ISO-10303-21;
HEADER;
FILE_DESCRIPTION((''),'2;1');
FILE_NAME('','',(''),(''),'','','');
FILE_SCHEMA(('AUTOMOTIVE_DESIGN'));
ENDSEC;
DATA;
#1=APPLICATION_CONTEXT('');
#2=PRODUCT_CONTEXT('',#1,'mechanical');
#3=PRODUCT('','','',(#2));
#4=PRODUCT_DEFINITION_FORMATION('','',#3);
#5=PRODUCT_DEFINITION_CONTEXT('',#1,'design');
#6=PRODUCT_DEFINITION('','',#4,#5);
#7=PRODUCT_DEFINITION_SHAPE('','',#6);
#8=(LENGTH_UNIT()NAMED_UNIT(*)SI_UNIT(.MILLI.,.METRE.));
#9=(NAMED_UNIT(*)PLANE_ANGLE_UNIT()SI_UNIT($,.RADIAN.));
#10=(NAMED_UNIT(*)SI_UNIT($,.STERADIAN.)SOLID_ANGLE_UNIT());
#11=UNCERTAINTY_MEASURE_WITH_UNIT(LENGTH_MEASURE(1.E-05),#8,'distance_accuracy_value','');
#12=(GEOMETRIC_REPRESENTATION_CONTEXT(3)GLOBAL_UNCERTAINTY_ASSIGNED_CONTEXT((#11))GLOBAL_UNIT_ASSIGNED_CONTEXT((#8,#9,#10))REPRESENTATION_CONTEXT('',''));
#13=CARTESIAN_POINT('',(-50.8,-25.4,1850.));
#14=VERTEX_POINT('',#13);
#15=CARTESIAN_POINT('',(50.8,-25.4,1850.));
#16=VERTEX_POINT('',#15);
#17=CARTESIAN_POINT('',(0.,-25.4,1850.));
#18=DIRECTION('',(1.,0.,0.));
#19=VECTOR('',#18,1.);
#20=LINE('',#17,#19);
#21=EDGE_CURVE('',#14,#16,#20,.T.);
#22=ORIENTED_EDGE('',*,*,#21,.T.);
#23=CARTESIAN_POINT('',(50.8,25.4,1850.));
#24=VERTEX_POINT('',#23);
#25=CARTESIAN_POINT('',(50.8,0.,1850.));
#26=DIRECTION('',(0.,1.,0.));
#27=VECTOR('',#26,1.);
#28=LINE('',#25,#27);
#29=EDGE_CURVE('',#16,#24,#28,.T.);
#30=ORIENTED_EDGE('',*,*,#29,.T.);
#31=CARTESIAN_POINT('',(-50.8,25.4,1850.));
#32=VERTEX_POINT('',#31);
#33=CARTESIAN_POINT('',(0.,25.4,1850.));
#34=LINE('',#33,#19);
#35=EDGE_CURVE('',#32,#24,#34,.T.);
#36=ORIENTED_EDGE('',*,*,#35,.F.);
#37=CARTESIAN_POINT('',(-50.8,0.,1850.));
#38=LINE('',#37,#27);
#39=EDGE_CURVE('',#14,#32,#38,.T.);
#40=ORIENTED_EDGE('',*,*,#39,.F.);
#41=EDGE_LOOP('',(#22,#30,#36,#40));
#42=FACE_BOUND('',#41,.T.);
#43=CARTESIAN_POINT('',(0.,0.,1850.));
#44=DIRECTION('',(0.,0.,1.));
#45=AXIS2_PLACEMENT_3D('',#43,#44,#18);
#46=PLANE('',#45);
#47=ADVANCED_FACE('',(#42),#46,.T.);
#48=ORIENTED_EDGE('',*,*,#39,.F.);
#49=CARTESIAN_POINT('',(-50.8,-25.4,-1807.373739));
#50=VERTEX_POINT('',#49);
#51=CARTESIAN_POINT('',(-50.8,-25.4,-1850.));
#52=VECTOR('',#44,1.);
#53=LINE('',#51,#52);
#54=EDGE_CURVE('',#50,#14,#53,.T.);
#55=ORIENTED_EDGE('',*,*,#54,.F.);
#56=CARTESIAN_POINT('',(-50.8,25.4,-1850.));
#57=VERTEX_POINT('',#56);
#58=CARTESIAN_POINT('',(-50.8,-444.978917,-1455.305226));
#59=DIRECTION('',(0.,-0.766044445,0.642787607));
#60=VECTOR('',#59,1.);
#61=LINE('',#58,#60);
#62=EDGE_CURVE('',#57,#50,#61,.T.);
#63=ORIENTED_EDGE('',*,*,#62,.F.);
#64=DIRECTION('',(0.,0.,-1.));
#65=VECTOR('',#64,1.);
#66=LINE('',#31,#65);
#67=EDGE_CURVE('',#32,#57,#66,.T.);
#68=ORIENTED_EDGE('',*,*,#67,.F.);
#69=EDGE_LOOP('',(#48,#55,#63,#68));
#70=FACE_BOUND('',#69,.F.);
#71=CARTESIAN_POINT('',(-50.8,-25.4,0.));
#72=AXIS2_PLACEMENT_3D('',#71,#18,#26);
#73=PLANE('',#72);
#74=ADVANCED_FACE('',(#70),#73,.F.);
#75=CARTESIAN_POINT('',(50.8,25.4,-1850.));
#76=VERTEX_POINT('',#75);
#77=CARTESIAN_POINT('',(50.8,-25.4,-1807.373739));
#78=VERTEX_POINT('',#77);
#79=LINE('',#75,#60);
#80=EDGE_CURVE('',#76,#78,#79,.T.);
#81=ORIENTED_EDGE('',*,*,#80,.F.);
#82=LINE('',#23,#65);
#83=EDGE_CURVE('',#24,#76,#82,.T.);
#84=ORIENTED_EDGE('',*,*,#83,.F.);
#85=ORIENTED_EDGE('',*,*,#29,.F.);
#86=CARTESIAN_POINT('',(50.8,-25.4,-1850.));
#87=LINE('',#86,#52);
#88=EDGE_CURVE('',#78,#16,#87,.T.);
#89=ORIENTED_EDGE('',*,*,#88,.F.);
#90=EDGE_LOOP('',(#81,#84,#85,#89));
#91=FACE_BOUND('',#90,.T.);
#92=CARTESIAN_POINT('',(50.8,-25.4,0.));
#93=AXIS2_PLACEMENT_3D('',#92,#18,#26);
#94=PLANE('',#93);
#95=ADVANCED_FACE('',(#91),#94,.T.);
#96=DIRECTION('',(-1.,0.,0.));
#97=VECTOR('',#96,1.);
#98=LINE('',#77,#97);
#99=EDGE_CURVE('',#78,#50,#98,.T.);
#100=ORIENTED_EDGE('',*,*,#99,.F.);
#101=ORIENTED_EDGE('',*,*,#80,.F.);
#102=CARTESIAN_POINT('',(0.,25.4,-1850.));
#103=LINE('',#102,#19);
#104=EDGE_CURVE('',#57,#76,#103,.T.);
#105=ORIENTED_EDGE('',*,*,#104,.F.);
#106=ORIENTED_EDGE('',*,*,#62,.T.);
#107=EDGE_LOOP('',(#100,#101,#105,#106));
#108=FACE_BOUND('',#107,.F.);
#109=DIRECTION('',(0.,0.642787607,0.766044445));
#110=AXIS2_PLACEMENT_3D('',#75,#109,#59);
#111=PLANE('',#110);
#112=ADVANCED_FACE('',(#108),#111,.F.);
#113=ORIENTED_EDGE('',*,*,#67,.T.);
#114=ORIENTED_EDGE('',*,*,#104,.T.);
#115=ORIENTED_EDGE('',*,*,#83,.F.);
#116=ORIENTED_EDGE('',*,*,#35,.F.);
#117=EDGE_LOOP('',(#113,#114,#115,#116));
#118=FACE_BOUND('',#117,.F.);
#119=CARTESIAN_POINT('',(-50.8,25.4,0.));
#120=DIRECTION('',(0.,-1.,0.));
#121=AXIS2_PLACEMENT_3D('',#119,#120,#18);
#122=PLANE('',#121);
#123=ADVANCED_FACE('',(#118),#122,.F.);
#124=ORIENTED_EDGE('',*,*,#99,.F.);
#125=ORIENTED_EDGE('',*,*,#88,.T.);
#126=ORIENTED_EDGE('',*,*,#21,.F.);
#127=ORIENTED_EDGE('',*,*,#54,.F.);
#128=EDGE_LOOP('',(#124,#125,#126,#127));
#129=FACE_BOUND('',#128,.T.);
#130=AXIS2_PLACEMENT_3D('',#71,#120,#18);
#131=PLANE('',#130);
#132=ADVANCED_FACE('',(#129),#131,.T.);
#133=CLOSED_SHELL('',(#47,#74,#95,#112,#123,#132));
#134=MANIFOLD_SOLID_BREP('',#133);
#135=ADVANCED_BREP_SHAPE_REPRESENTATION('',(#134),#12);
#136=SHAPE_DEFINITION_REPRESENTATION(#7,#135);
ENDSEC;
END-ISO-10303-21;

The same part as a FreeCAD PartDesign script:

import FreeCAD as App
import Part
import Sketcher
from FreeCAD import Vector
Q = App.Units.Quantity

doc = App.newDocument("Part")
body = doc.addObject("PartDesign::Body", "Body")

# Sketch on XY plane
sketch1 = doc.addObject("Sketcher::SketchObject", "Sketch")
body.addObject(sketch1)
sketch1.AttachmentSupport = (doc.XY_Plane, [""])
sketch1.MapMode = "FlatFace"
sketch1.addGeometry([
    Part.LineSegment(Vector(-50.8, 25.4, 0), Vector(-50.8, -25.4, 0)),
    Part.LineSegment(Vector(-50.8, -25.4, 0), Vector(50.8, -25.4, 0)),
    Part.LineSegment(Vector(50.8, -25.4, 0), Vector(50.8, 25.4, 0)),
    Part.LineSegment(Vector(50.8, 25.4, 0), Vector(-50.8, 25.4, 0)),
], False)
sketch1.addConstraint([
    Sketcher.Constraint("Coincident", 0, 2, 1, 1),
    Sketcher.Constraint("Coincident", 1, 2, 2, 1),
    Sketcher.Constraint("Coincident", 2, 2, 3, 1),
    Sketcher.Constraint("Coincident", 3, 2, 0, 1),
    Sketcher.Constraint("Vertical", 0),
    Sketcher.Constraint("Horizontal", 1),
    Sketcher.Constraint("Vertical", 2),
    Sketcher.Constraint("Horizontal", 3),
    Sketcher.Constraint("Symmetric", 0, 2, 2, 2, -1, 1),
    Sketcher.Constraint("DistanceX", 1, 1, 1, 2, Q("4 in")),
    Sketcher.Constraint("DistanceY", 0, 2, 0, 1, Q("2 in")),
])
pad1 = doc.addObject("PartDesign::Pad", "Pad")
body.addObject(pad1)
pad1.Profile = sketch1
pad1.Length = 3700
pad1.Midplane = True

# Sketch on YZ plane
sketch2 = doc.addObject("Sketcher::SketchObject", "Sketch001")
body.addObject(sketch2)
sketch2.AttachmentSupport = (doc.YZ_Plane, [""])
sketch2.MapMode = "FlatFace"
sketch2.AttachmentOffset = App.Placement(Vector(0, 0, 2 * 25.4), App.Rotation())
sketch2.addGeometry([
    Part.LineSegment(Vector(25.4, -1880.026198, 0), Vector(25.4, -1850, 0)),  # 0
    Part.LineSegment(Vector(25.4, -1850, 0), Vector(-25.4, -1807.373739, 0)),  # 1
    Part.LineSegment(Vector(-25.4, -1807.373739, 0), Vector(-79.596624, -1807.373739, 0)),  # 2
    Part.LineSegment(Vector(-79.596624, -1807.373739, 0), Vector(-79.596624, -1880.026198, 0)),  # 3
    Part.LineSegment(Vector(-79.596624, -1880.026198, 0), Vector(25.4, -1880.026198, 0)),  # 4
], False)
sketch2.addConstraint([
    Sketcher.Constraint("Coincident", 0, 2, 1, 1),
    Sketcher.Constraint("Coincident", 1, 2, 2, 1),
    Sketcher.Constraint("Coincident", 2, 2, 3, 1),
    Sketcher.Constraint("Coincident", 3, 2, 4, 1),
    Sketcher.Constraint("Coincident", 4, 2, 0, 1),
    Sketcher.Constraint("Vertical", 0),
    Sketcher.Constraint("Horizontal", 2),
    Sketcher.Constraint("Vertical", 3),
    Sketcher.Constraint("Horizontal", 4),
    Sketcher.Constraint("DistanceX", -1, 1, 0, 2, Q("1 in")),
    Sketcher.Constraint("DistanceX", 1, 2, -1, 1, Q("1 in")),
    Sketcher.Constraint("Angle", 1, Q("140 deg")),
    Sketcher.Constraint("DistanceY", 0, 1, 0, 2, Q("30.026198 mm")),
    Sketcher.Constraint("DistanceY", 0, 2, -1, 1, Q("1850 mm")),
    Sketcher.Constraint("DistanceX", 2, 2, 2, 1, Q("54.196624 mm")),
])
pocket1 = doc.addObject("PartDesign::Pocket", "Pocket")
body.addObject(pocket1)
pocket1.Profile = sketch2
pocket1.Type = "ThroughAll"

doc.recompute()
